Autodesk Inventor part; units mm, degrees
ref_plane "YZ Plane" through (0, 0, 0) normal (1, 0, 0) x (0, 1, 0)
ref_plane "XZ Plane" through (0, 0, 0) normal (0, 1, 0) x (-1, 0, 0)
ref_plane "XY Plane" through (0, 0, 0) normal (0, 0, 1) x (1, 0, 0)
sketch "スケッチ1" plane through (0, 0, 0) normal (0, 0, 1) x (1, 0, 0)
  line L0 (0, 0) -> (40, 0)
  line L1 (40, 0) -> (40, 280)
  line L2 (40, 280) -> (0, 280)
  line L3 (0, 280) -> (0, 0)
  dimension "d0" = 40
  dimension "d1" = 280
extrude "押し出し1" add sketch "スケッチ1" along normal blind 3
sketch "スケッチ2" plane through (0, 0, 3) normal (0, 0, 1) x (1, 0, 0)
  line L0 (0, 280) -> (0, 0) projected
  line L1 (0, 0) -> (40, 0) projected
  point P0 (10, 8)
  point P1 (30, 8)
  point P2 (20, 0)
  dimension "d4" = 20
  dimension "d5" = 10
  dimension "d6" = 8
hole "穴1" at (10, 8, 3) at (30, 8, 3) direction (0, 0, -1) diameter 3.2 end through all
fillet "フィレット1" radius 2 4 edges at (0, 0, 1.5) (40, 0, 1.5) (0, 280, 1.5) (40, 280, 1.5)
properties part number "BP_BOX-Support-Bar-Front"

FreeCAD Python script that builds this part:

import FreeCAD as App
import Part
import Sketcher

V = App.Vector


def edges_at(feature, points):
    """Names of the edges that pass closest to the given points."""
    edges = feature.Shape.Edges
    near = lambda p: min(range(len(edges)), key=lambda i: edges[i].distToShape(Part.Vertex(*p))[0])
    return sorted({f"Edge{near(p) + 1}" for p in points})

doc = App.newDocument("Part")
params = doc.addObject("Spreadsheet::Sheet", "Params")
for row, (alias, value) in enumerate([
    ("sketch1_width", "40 mm"),
    ("sketch1_height", "280 mm"),
    ("pad1_length", "3 mm"),
    ("sketch2_diameter", "3.2 mm"),
    ("hole_diameter", "3.2 mm"),
    ("fillet_radius", "2 mm"),
], start=1):
    params.set(f"A{row}", alias)
    params.set(f"B{row}", "=" + value)
    params.setAlias(f"B{row}", alias)

body = doc.addObject("PartDesign::Body", "Body")

# Sketch on XY plane
sketch1 = body.newObject("Sketcher::SketchObject", "Sketch")
sketch1.AttachmentSupport = (doc.getObject("XY_Plane"), [""])
sketch1.MapMode = "FlatFace"
sketch1.addGeometry([
    Part.LineSegment(V(0, 280, 0), V(0, 0, 0)),
    Part.LineSegment(V(0, 0, 0), V(40, 0, 0)),
    Part.LineSegment(V(40, 0, 0), V(40, 280, 0)),
    Part.LineSegment(V(40, 280, 0), V(0, 280, 0)),
], False)
sketch1.addConstraint([
    Sketcher.Constraint("Coincident", 0, 2, 1, 1),
    Sketcher.Constraint("Coincident", 1, 2, 2, 1),
    Sketcher.Constraint("Coincident", 2, 2, 3, 1),
    Sketcher.Constraint("Coincident", 3, 2, 0, 1),
    Sketcher.Constraint("Vertical", 0),
    Sketcher.Constraint("Horizontal", 1),
    Sketcher.Constraint("Vertical", 2),
    Sketcher.Constraint("Horizontal", 3),
    Sketcher.Constraint("Coincident", 0, 2, -1, 1),
    Sketcher.Constraint("DistanceX", 1, 1, 1, 2, 40.0),
    Sketcher.Constraint("DistanceY", 0, 2, 0, 1, 280.0),
])
sketch1.setExpression("Constraints[9]", "Params.sketch1_width")
sketch1.setExpression("Constraints[10]", "Params.sketch1_height")
pad1 = body.newObject("PartDesign::Pad", "Pad")
pad1.Profile = sketch1
pad1.setExpression("Length", "Params.pad1_length")

# Sketch on XY plane
sketch2 = body.newObject("Sketcher::SketchObject", "Sketch001")
sketch2.AttachmentSupport = (doc.getObject("XY_Plane"), [""])
sketch2.MapMode = "FlatFace"
sketch2.AttachmentOffset = App.Placement(V(0, 0, 3), App.Rotation())
sketch2.addGeometry([
    Part.Circle(V(10, 8, 0), V(0, 0, 1), 1.6),
    Part.Circle(V(30, 8, 0), V(0, 0, 1), 1.6),
], False)
sketch2.addConstraint([
    Sketcher.Constraint("Equal", 0, 1),
    Sketcher.Constraint("Horizontal", 0, 3, 1, 3),
    Sketcher.Constraint("Diameter", 0, 3.2),
    Sketcher.Constraint("DistanceX", -1, 1, 0, 3, 10.0),
    Sketcher.Constraint("DistanceY", -1, 1, 0, 3, 8.0),
    Sketcher.Constraint("DistanceX", -1, 1, 1, 3, 30.0),
])
sketch2.setExpression("Constraints[2]", "Params.sketch2_diameter")
doc.recompute()
hole = body.newObject("PartDesign::Hole", "Hole")
hole.Profile = sketch2
hole.ThreadType = "None"
hole.setExpression("Diameter", "Params.hole_diameter")
hole.DepthType = "ThroughAll"
doc.recompute()

fillet = body.newObject("PartDesign::Fillet", "Fillet")
fillet.Base = (hole, edges_at(hole, [
    (0, 0, 1.5),
    (40, 0, 1.5),
    (0, 280, 1.5),
    (40, 280, 1.5),
]))
fillet.setExpression("Radius", "Params.fillet_radius")

doc.recompute()
